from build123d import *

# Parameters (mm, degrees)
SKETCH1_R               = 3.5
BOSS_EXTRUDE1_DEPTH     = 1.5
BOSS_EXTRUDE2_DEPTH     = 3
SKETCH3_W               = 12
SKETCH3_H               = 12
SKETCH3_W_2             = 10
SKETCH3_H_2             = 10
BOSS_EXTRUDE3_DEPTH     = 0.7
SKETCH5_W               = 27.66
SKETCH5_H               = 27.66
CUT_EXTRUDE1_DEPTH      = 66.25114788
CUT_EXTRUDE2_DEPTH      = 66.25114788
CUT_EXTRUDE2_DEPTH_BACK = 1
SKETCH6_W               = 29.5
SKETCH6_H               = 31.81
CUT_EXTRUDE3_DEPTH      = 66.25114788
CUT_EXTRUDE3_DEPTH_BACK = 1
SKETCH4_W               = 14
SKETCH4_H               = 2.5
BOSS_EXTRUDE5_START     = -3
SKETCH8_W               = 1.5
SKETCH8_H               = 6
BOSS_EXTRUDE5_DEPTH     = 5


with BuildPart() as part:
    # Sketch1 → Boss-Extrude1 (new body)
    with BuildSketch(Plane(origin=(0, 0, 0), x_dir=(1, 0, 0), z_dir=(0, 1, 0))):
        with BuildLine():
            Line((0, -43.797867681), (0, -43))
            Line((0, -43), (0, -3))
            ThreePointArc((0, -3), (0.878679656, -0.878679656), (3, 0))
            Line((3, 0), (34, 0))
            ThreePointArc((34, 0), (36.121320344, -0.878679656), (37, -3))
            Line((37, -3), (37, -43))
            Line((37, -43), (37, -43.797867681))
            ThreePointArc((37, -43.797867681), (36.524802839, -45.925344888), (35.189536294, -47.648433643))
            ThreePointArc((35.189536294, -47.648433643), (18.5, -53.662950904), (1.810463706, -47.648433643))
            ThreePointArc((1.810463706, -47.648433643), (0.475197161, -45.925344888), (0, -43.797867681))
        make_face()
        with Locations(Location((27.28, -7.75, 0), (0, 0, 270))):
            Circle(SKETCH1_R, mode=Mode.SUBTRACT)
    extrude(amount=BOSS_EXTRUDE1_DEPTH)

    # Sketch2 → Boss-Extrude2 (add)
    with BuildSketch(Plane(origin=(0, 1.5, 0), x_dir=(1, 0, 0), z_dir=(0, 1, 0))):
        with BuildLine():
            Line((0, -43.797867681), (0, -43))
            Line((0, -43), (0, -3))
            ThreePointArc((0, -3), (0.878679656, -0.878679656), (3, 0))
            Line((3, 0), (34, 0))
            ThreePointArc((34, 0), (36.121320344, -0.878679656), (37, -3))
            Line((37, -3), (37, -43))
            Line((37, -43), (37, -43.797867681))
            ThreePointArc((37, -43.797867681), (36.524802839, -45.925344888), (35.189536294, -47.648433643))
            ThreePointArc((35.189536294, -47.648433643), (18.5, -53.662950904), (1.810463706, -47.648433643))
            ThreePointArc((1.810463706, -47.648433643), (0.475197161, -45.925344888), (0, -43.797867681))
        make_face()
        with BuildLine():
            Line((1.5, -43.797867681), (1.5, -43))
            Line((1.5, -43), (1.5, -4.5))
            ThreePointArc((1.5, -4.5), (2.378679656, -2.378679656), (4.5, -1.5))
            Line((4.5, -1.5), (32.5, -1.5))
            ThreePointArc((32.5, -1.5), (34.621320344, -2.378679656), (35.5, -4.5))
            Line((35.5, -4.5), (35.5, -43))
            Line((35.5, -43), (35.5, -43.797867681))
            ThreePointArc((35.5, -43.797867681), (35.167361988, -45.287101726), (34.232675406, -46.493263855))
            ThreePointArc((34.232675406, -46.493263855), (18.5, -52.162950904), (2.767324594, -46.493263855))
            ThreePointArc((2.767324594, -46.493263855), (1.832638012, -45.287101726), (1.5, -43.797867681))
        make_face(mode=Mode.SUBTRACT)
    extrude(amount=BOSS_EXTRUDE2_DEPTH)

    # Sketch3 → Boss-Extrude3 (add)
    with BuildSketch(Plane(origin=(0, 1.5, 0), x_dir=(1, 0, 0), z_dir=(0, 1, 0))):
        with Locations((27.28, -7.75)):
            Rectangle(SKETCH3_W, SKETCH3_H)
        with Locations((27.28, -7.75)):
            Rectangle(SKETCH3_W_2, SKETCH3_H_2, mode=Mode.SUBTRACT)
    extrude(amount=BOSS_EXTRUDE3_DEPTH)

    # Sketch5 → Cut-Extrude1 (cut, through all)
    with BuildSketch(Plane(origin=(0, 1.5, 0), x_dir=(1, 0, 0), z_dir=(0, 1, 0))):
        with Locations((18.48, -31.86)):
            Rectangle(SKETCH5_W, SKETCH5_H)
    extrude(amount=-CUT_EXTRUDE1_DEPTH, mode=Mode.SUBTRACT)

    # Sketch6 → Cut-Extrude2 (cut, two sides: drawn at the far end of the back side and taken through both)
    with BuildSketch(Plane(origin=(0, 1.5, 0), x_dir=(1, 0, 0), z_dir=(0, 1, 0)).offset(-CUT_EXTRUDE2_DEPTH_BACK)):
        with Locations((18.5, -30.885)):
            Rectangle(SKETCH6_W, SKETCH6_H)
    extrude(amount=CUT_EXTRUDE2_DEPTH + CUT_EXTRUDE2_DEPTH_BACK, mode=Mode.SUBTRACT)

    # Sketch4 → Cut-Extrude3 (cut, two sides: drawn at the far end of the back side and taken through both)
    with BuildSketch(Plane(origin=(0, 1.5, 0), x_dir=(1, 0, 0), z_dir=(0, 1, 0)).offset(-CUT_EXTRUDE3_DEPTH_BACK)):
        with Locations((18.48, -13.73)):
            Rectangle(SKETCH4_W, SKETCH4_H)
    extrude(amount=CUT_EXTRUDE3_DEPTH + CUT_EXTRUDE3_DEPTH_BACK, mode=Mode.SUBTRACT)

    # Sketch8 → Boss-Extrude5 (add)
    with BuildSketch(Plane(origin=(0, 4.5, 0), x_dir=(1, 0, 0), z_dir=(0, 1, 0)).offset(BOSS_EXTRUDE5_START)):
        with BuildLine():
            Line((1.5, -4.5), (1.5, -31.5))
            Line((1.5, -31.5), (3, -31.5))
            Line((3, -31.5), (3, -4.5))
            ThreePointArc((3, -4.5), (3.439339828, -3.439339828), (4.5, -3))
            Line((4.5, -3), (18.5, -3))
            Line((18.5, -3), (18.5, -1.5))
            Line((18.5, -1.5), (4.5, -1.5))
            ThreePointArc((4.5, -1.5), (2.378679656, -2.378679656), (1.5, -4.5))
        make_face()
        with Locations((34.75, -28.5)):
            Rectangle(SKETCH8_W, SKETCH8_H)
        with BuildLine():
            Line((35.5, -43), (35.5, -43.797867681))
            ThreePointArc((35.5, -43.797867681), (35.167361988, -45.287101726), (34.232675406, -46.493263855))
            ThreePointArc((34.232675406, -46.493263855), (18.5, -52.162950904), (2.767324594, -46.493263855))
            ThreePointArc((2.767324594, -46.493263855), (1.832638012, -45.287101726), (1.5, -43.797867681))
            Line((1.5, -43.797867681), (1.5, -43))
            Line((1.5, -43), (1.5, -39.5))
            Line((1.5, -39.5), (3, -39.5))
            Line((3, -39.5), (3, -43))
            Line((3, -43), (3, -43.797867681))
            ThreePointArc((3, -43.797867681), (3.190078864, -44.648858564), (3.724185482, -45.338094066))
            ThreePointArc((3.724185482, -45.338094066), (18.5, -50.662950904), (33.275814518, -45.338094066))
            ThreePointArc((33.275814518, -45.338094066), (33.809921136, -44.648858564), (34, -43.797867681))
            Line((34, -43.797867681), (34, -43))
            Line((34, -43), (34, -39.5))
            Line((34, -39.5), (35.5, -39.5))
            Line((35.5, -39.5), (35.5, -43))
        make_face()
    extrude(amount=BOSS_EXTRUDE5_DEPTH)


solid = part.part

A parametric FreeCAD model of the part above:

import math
import FreeCAD as App
import Part
import Sketcher

V = App.Vector


def add_polygon(sketch, points):
    """Adds a closed chain of lines whose ends are joined by coincident constraints."""
    first, n = sketch.GeometryCount, len(points)
    for a, b in zip(points, points[1:] + points[:1]):
        sketch.addGeometry(Part.LineSegment(App.Vector(*a, 0), App.Vector(*b, 0)), False)
    for i in range(n):
        sketch.addConstraint(Sketcher.Constraint("Coincident", first + i, 2, first + (i + 1) % n, 1))

doc = App.newDocument("Part")
body = doc.addObject("PartDesign::Body", "Body")

sketch1 = body.newObject("Sketcher::SketchObject", "Sketch")
sketch1.AttachmentSupport = (doc.getObject("XZ_Plane"), [""])
sketch1.MapMode = "FlatFace"
sketch1.addGeometry([
    Part.LineSegment(V(0, 3, 0), V(0, 43.797868, 0)),
    Part.ArcOfCircle(Part.Circle(V(5, 43.797868, 0), V(0, 0, 1), 5), math.radians(129.635945), math.radians(180)),
    Part.ArcOfCircle(Part.Circle(V(18.5, 27.5, 0), V(0, 0, 1), 26.162951), math.radians(50.364055), math.radians(129.635945)),
    Part.ArcOfCircle(Part.Circle(V(32, 43.797868, 0), V(0, 0, 1), 5), math.radians(0), math.radians(50.364055)),
    Part.LineSegment(V(37, 43.797868, 0), V(37, 3, 0)),
    Part.ArcOfCircle(Part.Circle(V(34, 3, 0), V(0, 0, 1), 3), math.radians(-90), math.radians(0)),
    Part.LineSegment(V(34, 0, 0), V(3, 0, 0)),
    Part.ArcOfCircle(Part.Circle(V(3, 3, 0), V(0, 0, 1), 3), math.radians(180), math.radians(270)),
    Part.Circle(V(27.28, 7.75, 0), V(0, 0, 1), 3.5),
], False)
sketch1.addConstraint([
    Sketcher.Constraint("Tangent", 0, 2, 1, 2),
    Sketcher.Constraint("Tangent", 1, 1, 2, 2),
    Sketcher.Constraint("Tangent", 2, 1, 3, 2),
    Sketcher.Constraint("Tangent", 3, 1, 4, 1),
    Sketcher.Constraint("Tangent", 4, 2, 5, 2),
    Sketcher.Constraint("Tangent", 5, 1, 6, 1),
    Sketcher.Constraint("Tangent", 6, 2, 7, 2),
    Sketcher.Constraint("Tangent", 7, 1, 0, 1),
    Sketcher.Constraint("Vertical", 0),
    Sketcher.Constraint("Vertical", 4),
    Sketcher.Constraint("Horizontal", 6),
    Sketcher.Constraint("Equal", 1, 3),
    Sketcher.Constraint("Equal", 5, 7),
    Sketcher.Constraint("PointOnObject", 0, 2, -2),
    Sketcher.Constraint("PointOnObject", 5, 1, -1),
    Sketcher.Constraint("Horizontal", 1, 3, 3, 3),
    Sketcher.Constraint("Diameter", 8, 7.0),
    Sketcher.Constraint("Radius", 1, 5.0),
    Sketcher.Constraint("Radius", 5, 3.0),
    Sketcher.Constraint("DistanceX", 6, 2, 6, 1, 31.0),
    Sketcher.Constraint("DistanceY", -1, 1, 2, 3, 27.5),
    Sketcher.Constraint("DistanceX", -1, 1, 8, 3, 27.28),
    Sketcher.Constraint("DistanceY", -1, 1, 8, 3, 7.75),
    Sketcher.Constraint("Radius", 2, 26.162951),
])
pad1 = body.newObject("PartDesign::Pad", "Pad")
pad1.Profile = sketch1
pad1.Length = 1.5
pad1.Reversed = True

sketch2 = body.newObject("Sketcher::SketchObject", "Sketch001")
sketch2.AttachmentSupport = (doc.getObject("XZ_Plane"), [""])
sketch2.MapMode = "FlatFace"
sketch2.AttachmentOffset = App.Placement(V(0, 0, -1.5), App.Rotation())
sketch2.addGeometry([
    Part.LineSegment(V(0, 3, 0), V(0, 43.797868, 0)),
    Part.ArcOfCircle(Part.Circle(V(5, 43.797868, 0), V(0, 0, 1), 5), math.radians(129.635945), math.radians(180)),
    Part.ArcOfCircle(Part.Circle(V(18.5, 27.5, 0), V(0, 0, 1), 26.162951), math.radians(50.364055), math.radians(129.635945)),
    Part.ArcOfCircle(Part.Circle(V(32, 43.797868, 0), V(0, 0, 1), 5), math.radians(0), math.radians(50.364055)),
    Part.LineSegment(V(37, 43.797868, 0), V(37, 3, 0)),
    Part.ArcOfCircle(Part.Circle(V(34, 3, 0), V(0, 0, 1), 3), math.radians(-90), math.radians(0)),
    Part.LineSegment(V(34, 0, 0), V(3, 0, 0)),
    Part.ArcOfCircle(Part.Circle(V(3, 3, 0), V(0, 0, 1), 3), math.radians(180), math.radians(270)),
    Part.LineSegment(V(1.5, 43.797868, 0), V(1.5, 4.5, 0)),
    Part.ArcOfCircle(Part.Circle(V(4.5, 4.5, 0), V(0, 0, 1), 3), math.radians(180), math.radians(270)),
    Part.LineSegment(V(4.5, 1.5, 0), V(32.5, 1.5, 0)),
    Part.ArcOfCircle(Part.Circle(V(32.5, 4.5, 0), V(0, 0, 1), 3), math.radians(-90), math.radians(0)),
    Part.LineSegment(V(35.5, 4.5, 0), V(35.5, 43.797868, 0)),
    Part.ArcOfCircle(Part.Circle(V(32, 43.797868, 0), V(0, 0, 1), 3.5), math.radians(0), math.radians(50.364055)),
    Part.ArcOfCircle(Part.Circle(V(18.5, 27.5, 0), V(0, 0, 1), 24.662951), math.radians(50.364055), math.radians(129.635945)),
    Part.ArcOfCircle(Part.Circle(V(5, 43.797868, 0), V(0, 0, 1), 3.5), math.radians(129.635945), math.radians(180)),
], False)
sketch2.addConstraint([
    Sketcher.Constraint("Tangent", 0, 2, 1, 2),
    Sketcher.Constraint("Tangent", 1, 1, 2, 2),
    Sketcher.Constraint("Tangent", 2, 1, 3, 2),
    Sketcher.Constraint("Tangent", 3, 1, 4, 1),
    Sketcher.Constraint("Tangent", 4, 2, 5, 2),
    Sketcher.Constraint("Tangent", 5, 1, 6, 1),
    Sketcher.Constraint("Tangent", 6, 2, 7, 2),
    Sketcher.Constraint("Tangent", 7, 1, 0, 1),
    Sketcher.Constraint("Tangent", 8, 2, 9, 1),
    Sketcher.Constraint("Tangent", 9, 2, 10, 1),
    Sketcher.Constraint("Tangent", 10, 2, 11, 1),
    Sketcher.Constraint("Tangent", 11, 2, 12, 1),
    Sketcher.Constraint("Tangent", 12, 2, 13, 1),
    Sketcher.Constraint("Tangent", 13, 2, 14, 1),
    Sketcher.Constraint("Tangent", 14, 2, 15, 1),
    Sketcher.Constraint("Tangent", 15, 2, 8, 1),
    Sketcher.Constraint("Vertical", 0),
    Sketcher.Constraint("Vertical", 4),
    Sketcher.Constraint("Horizontal", 6),
    Sketcher.Constraint("Vertical", 8),
    Sketcher.Constraint("Horizontal", 10),
    Sketcher.Constraint("Vertical", 12),
    Sketcher.Constraint("Coincident", 13, 3, 3, 3),
    Sketcher.Constraint("Coincident", 14, 3, 2, 3),
    Sketcher.Constraint("Coincident", 15, 3, 1, 3),
    Sketcher.Constraint("Equal", 1, 3),
    Sketcher.Constraint("Equal", 5, 7),
    Sketcher.Constraint("Equal", 7, 9),
    Sketcher.Constraint("Equal", 9, 11),
    Sketcher.Constraint("PointOnObject", 0, 2, -2),
    Sketcher.Constraint("PointOnObject", 5, 1, -1),
    Sketcher.Constraint("Horizontal", 1, 3, 3, 3),
    Sketcher.Constraint("Radius", 1, 5.0),
    Sketcher.Constraint("Radius", 5, 3.0),
    Sketcher.Constraint("Radius", 13, 3.5),
    Sketcher.Constraint("DistanceX", 6, 2, 6, 1, 31.0),
    Sketcher.Constraint("DistanceY", 9, 3, 2, 3, 23.0),
    Sketcher.Constraint("DistanceY", -1, 1, 2, 3, 27.5),
    Sketcher.Constraint("Radius", 2, 26.162951),
])
pad2 = body.newObject("PartDesign::Pad", "Pad001")
pad2.Profile = sketch2
pad2.Length = 3
pad2.Reversed = True

sketch3 = body.newObject("Sketcher::SketchObject", "Sketch002")
sketch3.AttachmentSupport = (doc.getObject("XZ_Plane"), [""])
sketch3.MapMode = "FlatFace"
sketch3.AttachmentOffset = App.Placement(V(0, 0, -1.5), App.Rotation())
add_polygon(sketch3, [(21.28, 1.75), (21.28, 13.75), (33.28, 13.75), (33.28, 1.75)])
add_polygon(sketch3, [(32.28, 12.75), (22.28, 12.75), (22.28, 2.75), (32.28, 2.75)])
sketch3.addConstraint([
    Sketcher.Constraint("Vertical", 0),
    Sketcher.Constraint("Horizontal", 1),
    Sketcher.Constraint("Vertical", 2),
    Sketcher.Constraint("Horizontal", 3),
    Sketcher.Constraint("Horizontal", 4),
    Sketcher.Constraint("Vertical", 5),
    Sketcher.Constraint("Horizontal", 6),
    Sketcher.Constraint("Vertical", 7),
    Sketcher.Constraint("Equal", 3, 0),
    Sketcher.Constraint("Equal", 6, 5),
    Sketcher.Constraint("DistanceX", 1, 1, 1, 2, 12.0),
    Sketcher.Constraint("DistanceX", 4, 2, 4, 1, 10.0),
    Sketcher.Constraint("DistanceX", 0, 2, 4, 2, 1.0),
    Sketcher.Constraint("DistanceY", 4, 2, 0, 2, 1.0),
    Sketcher.Constraint("DistanceX", -1, 1, 0, 2, 21.28),
    Sketcher.Constraint("DistanceY", -1, 1, 0, 2, 13.75),
])
pad3 = body.newObject("PartDesign::Pad", "Pad002")
pad3.Profile = sketch3
pad3.Length = 0.7
pad3.Reversed = True

sketch4 = body.newObject("Sketcher::SketchObject", "Sketch003")
sketch4.AttachmentSupport = (doc.getObject("XZ_Plane"), [""])
sketch4.MapMode = "FlatFace"
sketch4.AttachmentOffset = App.Placement(V(0, 0, -1.5), App.Rotation())
add_polygon(sketch4, [(4.65, 18.03), (4.65, 45.69), (32.31, 45.69), (32.31, 18.03)])
sketch4.addConstraint([
    Sketcher.Constraint("Vertical", 0),
    Sketcher.Constraint("Horizontal", 1),
    Sketcher.Constraint("Vertical", 2),
    Sketcher.Constraint("Horizontal", 3),
    Sketcher.Constraint("Equal", 3, 0),
    Sketcher.Constraint("DistanceX", 1, 1, 1, 2, 27.66),
    Sketcher.Constraint("DistanceX", -1, 1, 0, 2, 4.65),
    Sketcher.Constraint("DistanceY", -1, 1, 0, 2, 45.69),
])
pocket1 = body.newObject("PartDesign::Pocket", "Pocket")
pocket1.Profile = sketch4
pocket1.Type = "ThroughAll"
pocket1.Reversed = True

sketch5 = body.newObject("Sketcher::SketchObject", "Sketch004")
sketch5.AttachmentSupport = (doc.getObject("XZ_Plane"), [""])
sketch5.MapMode = "FlatFace"
sketch5.AttachmentOffset = App.Placement(V(0, 0, -1.5), App.Rotation())
add_polygon(sketch5, [(3.75, 14.98), (3.75, 46.79), (33.25, 46.79), (33.25, 14.98)])
sketch5.addConstraint([
    Sketcher.Constraint("Vertical", 0),
    Sketcher.Constraint("Horizontal", 1),
    Sketcher.Constraint("Vertical", 2),
    Sketcher.Constraint("Horizontal", 3),
    Sketcher.Constraint("DistanceX", 1, 1, 1, 2, 29.5),
    Sketcher.Constraint("DistanceY", 0, 1, 0, 2, 31.81),
    Sketcher.Constraint("DistanceX", -1, 1, 0, 2, 3.75),
    Sketcher.Constraint("DistanceY", -1, 1, 0, 2, 46.79),
])
pocket2 = body.newObject("PartDesign::Pocket", "Pocket001")
pocket2.Profile = sketch5
pocket2.Type = "TwoLengths"
pocket2.Length = 66.251148
pocket2.Length2 = 1

sketch6 = body.newObject("Sketcher::SketchObject", "Sketch005")
sketch6.AttachmentSupport = (doc.getObject("XZ_Plane"), [""])
sketch6.MapMode = "FlatFace"
sketch6.AttachmentOffset = App.Placement(V(0, 0, -1.5), App.Rotation())
add_polygon(sketch6, [(11.48, 12.48), (11.48, 14.98), (25.48, 14.98), (25.48, 12.48)])
sketch6.addConstraint([
    Sketcher.Constraint("Vertical", 0),
    Sketcher.Constraint("Horizontal", 1),
    Sketcher.Constraint("Vertical", 2),
    Sketcher.Constraint("Horizontal", 3),
    Sketcher.Constraint("DistanceX", 1, 1, 1, 2, 14.0),
    Sketcher.Constraint("DistanceY", 0, 1, 0, 2, 2.5),
    Sketcher.Constraint("DistanceX", -1, 1, 0, 2, 11.48),
    Sketcher.Constraint("DistanceY", -1, 1, 0, 2, 14.98),
])
pocket3 = body.newObject("PartDesign::Pocket", "Pocket002")
pocket3.Profile = sketch6
pocket3.Type = "TwoLengths"
pocket3.Length = 66.251148
pocket3.Length2 = 1

sketch7 = body.newObject("Sketcher::SketchObject", "Sketch006")
sketch7.AttachmentSupport = (doc.getObject("XZ_Plane"), [""])
sketch7.MapMode = "FlatFace"
sketch7.AttachmentOffset = App.Placement(V(0, 0, -1.5), App.Rotation())
sketch7.addGeometry(Part.LineSegment(V(1.5, 4.5, 0), V(1.5, 31.5, 0)), False)
sketch7.addGeometry(Part.LineSegment(V(1.5, 31.5, 0), V(3, 31.5, 0)), False)
sketch7.addGeometry(Part.LineSegment(V(3, 31.5, 0), V(3, 4.5, 0)), False)
sketch7.addGeometry(Part.ArcOfCircle(Part.Circle(V(4.5, 4.5, 0), V(0, 0, 1), 1.5), math.radians(180), math.radians(270)), False)
sketch7.addGeometry(Part.LineSegment(V(4.5, 3, 0), V(18.5, 3, 0)), False)
sketch7.addGeometry(Part.LineSegment(V(18.5, 3, 0), V(18.5, 1.5, 0)), False)
sketch7.addGeometry(Part.LineSegment(V(18.5, 1.5, 0), V(4.5, 1.5, 0)), False)
sketch7.addGeometry(Part.ArcOfCircle(Part.Circle(V(4.5, 4.5, 0), V(0, 0, 1), 3), math.radians(180), math.radians(270)), False)
add_polygon(sketch7, [(34, 25.5), (34, 31.5), (35.5, 31.5), (35.5, 25.5)])
sketch7.addGeometry(Part.ArcOfCircle(Part.Circle(V(32, 43.797868, 0), V(0, 0, 1), 3.5), math.radians(0), math.radians(50.364055)), False)
sketch7.addGeometry(Part.LineSegment(V(35.5, 43.797868, 0), V(35.5, 39.5, 0)), False)
sketch7.addGeometry(Part.LineSegment(V(35.5, 39.5, 0), V(34, 39.5, 0)), False)
sketch7.addGeometry(Part.LineSegment(V(34, 39.5, 0), V(34, 43.797868, 0)), False)
sketch7.addGeometry(Part.ArcOfCircle(Part.Circle(V(32, 43.797868, 0), V(0, 0, 1), 2), math.radians(0), math.radians(50.364055)), False)
sketch7.addGeometry(Part.ArcOfCircle(Part.Circle(V(18.5, 27.5, 0), V(0, 0, 1), 23.162951), math.radians(50.364055), math.radians(129.635945)), False)
sketch7.addGeometry(Part.ArcOfCircle(Part.Circle(V(5, 43.797868, 0), V(0, 0, 1), 2), math.radians(129.635945), math.radians(180)), False)
sketch7.addGeometry(Part.LineSegment(V(3, 43.797868, 0), V(3, 39.5, 0)), False)
sketch7.addGeometry(Part.LineSegment(V(3, 39.5, 0), V(1.5, 39.5, 0)), False)
sketch7.addGeometry(Part.LineSegment(V(1.5, 39.5, 0), V(1.5, 43.797868, 0)), False)
sketch7.addGeometry(Part.ArcOfCircle(Part.Circle(V(5, 43.797868, 0), V(0, 0, 1), 3.5), math.radians(129.635945), math.radians(180)), False)
sketch7.addGeometry(Part.ArcOfCircle(Part.Circle(V(18.5, 27.5, 0), V(0, 0, 1), 24.662951), math.radians(50.364055), math.radians(129.635945)), False)
sketch7.addConstraint([
    Sketcher.Constraint("Coincident", 0, 2, 1, 1),
    Sketcher.Constraint("Coincident", 1, 2, 2, 1),
    Sketcher.Constraint("Tangent", 2, 2, 3, 1),
    Sketcher.Constraint("Tangent", 3, 2, 4, 1),
    Sketcher.Constraint("Coincident", 4, 2, 5, 1),
    Sketcher.Constraint("Coincident", 5, 2, 6, 1),
    Sketcher.Constraint("Tangent", 6, 2, 7, 2),
    Sketcher.Constraint("Tangent", 7, 1, 0, 1),
    Sketcher.Constraint("Tangent", 12, 1, 13, 1),
    Sketcher.Constraint("Coincident", 13, 2, 14, 1),
    Sketcher.Constraint("Coincident", 14, 2, 15, 1),
    Sketcher.Constraint("Tangent", 15, 2, 16, 1),
    Sketcher.Constraint("Tangent", 16, 2, 17, 1),
    Sketcher.Constraint("Tangent", 17, 2, 18, 1),
    Sketcher.Constraint("Tangent", 18, 2, 19, 1),
    Sketcher.Constraint("Coincident", 19, 2, 20, 1),
    Sketcher.Constraint("Coincident", 20, 2, 21, 1),
    Sketcher.Constraint("Tangent", 21, 2, 22, 2),
    Sketcher.Constraint("Tangent", 22, 1, 23, 2),
    Sketcher.Constraint("Tangent", 23, 1, 12, 2),
    Sketcher.Constraint("Vertical", 0),
    Sketcher.Constraint("Horizontal", 1),
    Sketcher.Constraint("Vertical", 2),
    Sketcher.Constraint("Horizontal", 4),
    Sketcher.Constraint("Vertical", 5),
    Sketcher.Constraint("Horizontal", 6),
    Sketcher.Constraint("Vertical", 8),
    Sketcher.Constraint("Horizontal", 9),
    Sketcher.Constraint("Vertical", 10),
    Sketcher.Constraint("Horizontal", 11),
    Sketcher.Constraint("Vertical", 13),
    Sketcher.Constraint("Horizontal", 14),
    Sketcher.Constraint("Vertical", 15),
    Sketcher.Constraint("Vertical", 19),
    Sketcher.Constraint("Horizontal", 20),
    Sketcher.Constraint("Vertical", 21),
    Sketcher.Constraint("Coincident", 7, 3, 3, 3),
    Sketcher.Constraint("Coincident", 16, 3, 12, 3),
    Sketcher.Constraint("Coincident", 22, 3, 18, 3),
    Sketcher.Constraint("Coincident", 23, 3, 17, 3),
    Sketcher.Constraint("Equal", 16, 18),
    Sketcher.Constraint("Horizontal", 16, 3, 18, 3),
    Sketcher.Constraint("Horizontal", 1, 2, 8, 2),
    Sketcher.Constraint("Horizontal", 14, 2, 19, 2),
    Sketcher.Constraint("Vertical", 23, 3, 4, 2),
    Sketcher.Constraint("Vertical", 10, 2, 12, 1),
    Sketcher.Constraint("Vertical", 11, 2, 14, 2),
    Sketcher.Constraint("Vertical", 2, 2, 18, 2),
    Sketcher.Constraint("Vertical", 7, 1, 20, 2),
    Sketcher.Constraint("Radius", 7, 3.0),
    Sketcher.Constraint("Radius", 16, 2.0),
    Sketcher.Constraint("Radius", 3, 1.5),
    Sketcher.Constraint("DistanceX", 4, 1, 4, 2, 14.0),
    Sketcher.Constraint("DistanceY", 0, 1, 0, 2, 27.0),
    Sketcher.Constraint("DistanceY", 8, 1, 8, 2, 6.0),
    Sketcher.Constraint("DistanceX", -1, 1, 12, 3, 32.0),
    Sketcher.Constraint("DistanceY", -1, 1, 3, 2, 3.0),
    Sketcher.Constraint("DistanceY", 3, 3, 17, 3, 23.0),
    Sketcher.Constraint("DistanceY", 9, 2, 13, 2, 8.0),
    Sketcher.Constraint("Radius", 17, 23.162951),
])
pad4 = body.newObject("PartDesign::Pad", "Pad003")
pad4.Profile = sketch7
pad4.Length = 5
pad4.Reversed = True

doc.recompute()
